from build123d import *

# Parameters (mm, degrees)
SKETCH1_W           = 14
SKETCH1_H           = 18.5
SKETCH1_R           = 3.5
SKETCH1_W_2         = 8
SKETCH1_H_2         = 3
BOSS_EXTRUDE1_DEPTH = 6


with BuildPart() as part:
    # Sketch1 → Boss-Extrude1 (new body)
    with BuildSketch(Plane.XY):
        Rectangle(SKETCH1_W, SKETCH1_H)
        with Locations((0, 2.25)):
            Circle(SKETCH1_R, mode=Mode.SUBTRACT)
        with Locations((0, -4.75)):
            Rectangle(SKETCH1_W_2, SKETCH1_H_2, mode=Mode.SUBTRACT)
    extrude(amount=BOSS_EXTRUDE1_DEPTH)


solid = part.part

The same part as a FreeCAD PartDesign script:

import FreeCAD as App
import Part
import Sketcher
Q = App.Units.Quantity


def add_polygon(sketch, points):
    """Adds a closed chain of lines whose ends are joined by coincident constraints."""
    first, n = sketch.GeometryCount, len(points)
    for a, b in zip(points, points[1:] + points[:1]):
        sketch.addGeometry(Part.LineSegment(App.Vector(*a, 0), App.Vector(*b, 0)), False)
    for i in range(n):
        sketch.addConstraint(Sketcher.Constraint("Coincident", first + i, 2, first + (i + 1) % n, 1))

doc = App.newDocument("Part")
body = doc.addObject("PartDesign::Body", "Body")

sketch1 = doc.addObject("Sketcher::SketchObject", "Sketch")
body.addObject(sketch1)
sketch1.AttachmentSupport = (doc.XY_Plane, [""])
sketch1.MapMode = "FlatFace"
add_polygon(sketch1, [(-7, 9.2), (-7, -9.2), (7, -9.2), (7, 9.2)])
add_polygon(sketch1, [(4, -6.2), (-4, -6.2), (-4, -3.2), (4, -3.2)])
sketch1.addGeometry(Part.Circle(App.Vector(0, 2.2, 0), App.Vector(0, 0, 1), 3.5), False)
sketch1.addConstraint(Sketcher.Constraint("Vertical", 0))
sketch1.addConstraint(Sketcher.Constraint("Horizontal", 1))
sketch1.addConstraint(Sketcher.Constraint("Vertical", 2))
sketch1.addConstraint(Sketcher.Constraint("Horizontal", 3))
sketch1.addConstraint(Sketcher.Constraint("Horizontal", 4))
sketch1.addConstraint(Sketcher.Constraint("Vertical", 5))
sketch1.addConstraint(Sketcher.Constraint("Horizontal", 6))
sketch1.addConstraint(Sketcher.Constraint("Vertical", 7))
sketch1.addConstraint(Sketcher.Constraint("Symmetric", 0, 2, 2, 2, -1, 1))
sketch1.addConstraint(Sketcher.Constraint("PointOnObject", 8, 3, -2))
sketch1.addConstraint(Sketcher.Constraint("Diameter", 8, Q("7 mm")))
sketch1.addConstraint(Sketcher.Constraint("DistanceX", 1, 1, 1, 2, Q("14 mm")))
sketch1.addConstraint(Sketcher.Constraint("DistanceX", 4, 2, 4, 1, Q("8 mm")))
sketch1.addConstraint(Sketcher.Constraint("DistanceY", 5, 1, 5, 2, Q("3 mm")))
sketch1.addConstraint(Sketcher.Constraint("DistanceY", 0, 2, 0, 1, Q("18.5 mm")))
sketch1.addConstraint(Sketcher.Constraint("DistanceX", 4, 2, -1, 1, Q("4 mm")))
sketch1.addConstraint(Sketcher.Constraint("DistanceY", 8, 3, 2, 2, Q("7 mm")))
sketch1.addConstraint(Sketcher.Constraint("DistanceY", 0, 2, 4, 2, Q("3 mm")))
pad1 = doc.addObject("PartDesign::Pad", "Pad")
body.addObject(pad1)
pad1.Profile = sketch1
pad1.Length = 6

doc.recompute()
